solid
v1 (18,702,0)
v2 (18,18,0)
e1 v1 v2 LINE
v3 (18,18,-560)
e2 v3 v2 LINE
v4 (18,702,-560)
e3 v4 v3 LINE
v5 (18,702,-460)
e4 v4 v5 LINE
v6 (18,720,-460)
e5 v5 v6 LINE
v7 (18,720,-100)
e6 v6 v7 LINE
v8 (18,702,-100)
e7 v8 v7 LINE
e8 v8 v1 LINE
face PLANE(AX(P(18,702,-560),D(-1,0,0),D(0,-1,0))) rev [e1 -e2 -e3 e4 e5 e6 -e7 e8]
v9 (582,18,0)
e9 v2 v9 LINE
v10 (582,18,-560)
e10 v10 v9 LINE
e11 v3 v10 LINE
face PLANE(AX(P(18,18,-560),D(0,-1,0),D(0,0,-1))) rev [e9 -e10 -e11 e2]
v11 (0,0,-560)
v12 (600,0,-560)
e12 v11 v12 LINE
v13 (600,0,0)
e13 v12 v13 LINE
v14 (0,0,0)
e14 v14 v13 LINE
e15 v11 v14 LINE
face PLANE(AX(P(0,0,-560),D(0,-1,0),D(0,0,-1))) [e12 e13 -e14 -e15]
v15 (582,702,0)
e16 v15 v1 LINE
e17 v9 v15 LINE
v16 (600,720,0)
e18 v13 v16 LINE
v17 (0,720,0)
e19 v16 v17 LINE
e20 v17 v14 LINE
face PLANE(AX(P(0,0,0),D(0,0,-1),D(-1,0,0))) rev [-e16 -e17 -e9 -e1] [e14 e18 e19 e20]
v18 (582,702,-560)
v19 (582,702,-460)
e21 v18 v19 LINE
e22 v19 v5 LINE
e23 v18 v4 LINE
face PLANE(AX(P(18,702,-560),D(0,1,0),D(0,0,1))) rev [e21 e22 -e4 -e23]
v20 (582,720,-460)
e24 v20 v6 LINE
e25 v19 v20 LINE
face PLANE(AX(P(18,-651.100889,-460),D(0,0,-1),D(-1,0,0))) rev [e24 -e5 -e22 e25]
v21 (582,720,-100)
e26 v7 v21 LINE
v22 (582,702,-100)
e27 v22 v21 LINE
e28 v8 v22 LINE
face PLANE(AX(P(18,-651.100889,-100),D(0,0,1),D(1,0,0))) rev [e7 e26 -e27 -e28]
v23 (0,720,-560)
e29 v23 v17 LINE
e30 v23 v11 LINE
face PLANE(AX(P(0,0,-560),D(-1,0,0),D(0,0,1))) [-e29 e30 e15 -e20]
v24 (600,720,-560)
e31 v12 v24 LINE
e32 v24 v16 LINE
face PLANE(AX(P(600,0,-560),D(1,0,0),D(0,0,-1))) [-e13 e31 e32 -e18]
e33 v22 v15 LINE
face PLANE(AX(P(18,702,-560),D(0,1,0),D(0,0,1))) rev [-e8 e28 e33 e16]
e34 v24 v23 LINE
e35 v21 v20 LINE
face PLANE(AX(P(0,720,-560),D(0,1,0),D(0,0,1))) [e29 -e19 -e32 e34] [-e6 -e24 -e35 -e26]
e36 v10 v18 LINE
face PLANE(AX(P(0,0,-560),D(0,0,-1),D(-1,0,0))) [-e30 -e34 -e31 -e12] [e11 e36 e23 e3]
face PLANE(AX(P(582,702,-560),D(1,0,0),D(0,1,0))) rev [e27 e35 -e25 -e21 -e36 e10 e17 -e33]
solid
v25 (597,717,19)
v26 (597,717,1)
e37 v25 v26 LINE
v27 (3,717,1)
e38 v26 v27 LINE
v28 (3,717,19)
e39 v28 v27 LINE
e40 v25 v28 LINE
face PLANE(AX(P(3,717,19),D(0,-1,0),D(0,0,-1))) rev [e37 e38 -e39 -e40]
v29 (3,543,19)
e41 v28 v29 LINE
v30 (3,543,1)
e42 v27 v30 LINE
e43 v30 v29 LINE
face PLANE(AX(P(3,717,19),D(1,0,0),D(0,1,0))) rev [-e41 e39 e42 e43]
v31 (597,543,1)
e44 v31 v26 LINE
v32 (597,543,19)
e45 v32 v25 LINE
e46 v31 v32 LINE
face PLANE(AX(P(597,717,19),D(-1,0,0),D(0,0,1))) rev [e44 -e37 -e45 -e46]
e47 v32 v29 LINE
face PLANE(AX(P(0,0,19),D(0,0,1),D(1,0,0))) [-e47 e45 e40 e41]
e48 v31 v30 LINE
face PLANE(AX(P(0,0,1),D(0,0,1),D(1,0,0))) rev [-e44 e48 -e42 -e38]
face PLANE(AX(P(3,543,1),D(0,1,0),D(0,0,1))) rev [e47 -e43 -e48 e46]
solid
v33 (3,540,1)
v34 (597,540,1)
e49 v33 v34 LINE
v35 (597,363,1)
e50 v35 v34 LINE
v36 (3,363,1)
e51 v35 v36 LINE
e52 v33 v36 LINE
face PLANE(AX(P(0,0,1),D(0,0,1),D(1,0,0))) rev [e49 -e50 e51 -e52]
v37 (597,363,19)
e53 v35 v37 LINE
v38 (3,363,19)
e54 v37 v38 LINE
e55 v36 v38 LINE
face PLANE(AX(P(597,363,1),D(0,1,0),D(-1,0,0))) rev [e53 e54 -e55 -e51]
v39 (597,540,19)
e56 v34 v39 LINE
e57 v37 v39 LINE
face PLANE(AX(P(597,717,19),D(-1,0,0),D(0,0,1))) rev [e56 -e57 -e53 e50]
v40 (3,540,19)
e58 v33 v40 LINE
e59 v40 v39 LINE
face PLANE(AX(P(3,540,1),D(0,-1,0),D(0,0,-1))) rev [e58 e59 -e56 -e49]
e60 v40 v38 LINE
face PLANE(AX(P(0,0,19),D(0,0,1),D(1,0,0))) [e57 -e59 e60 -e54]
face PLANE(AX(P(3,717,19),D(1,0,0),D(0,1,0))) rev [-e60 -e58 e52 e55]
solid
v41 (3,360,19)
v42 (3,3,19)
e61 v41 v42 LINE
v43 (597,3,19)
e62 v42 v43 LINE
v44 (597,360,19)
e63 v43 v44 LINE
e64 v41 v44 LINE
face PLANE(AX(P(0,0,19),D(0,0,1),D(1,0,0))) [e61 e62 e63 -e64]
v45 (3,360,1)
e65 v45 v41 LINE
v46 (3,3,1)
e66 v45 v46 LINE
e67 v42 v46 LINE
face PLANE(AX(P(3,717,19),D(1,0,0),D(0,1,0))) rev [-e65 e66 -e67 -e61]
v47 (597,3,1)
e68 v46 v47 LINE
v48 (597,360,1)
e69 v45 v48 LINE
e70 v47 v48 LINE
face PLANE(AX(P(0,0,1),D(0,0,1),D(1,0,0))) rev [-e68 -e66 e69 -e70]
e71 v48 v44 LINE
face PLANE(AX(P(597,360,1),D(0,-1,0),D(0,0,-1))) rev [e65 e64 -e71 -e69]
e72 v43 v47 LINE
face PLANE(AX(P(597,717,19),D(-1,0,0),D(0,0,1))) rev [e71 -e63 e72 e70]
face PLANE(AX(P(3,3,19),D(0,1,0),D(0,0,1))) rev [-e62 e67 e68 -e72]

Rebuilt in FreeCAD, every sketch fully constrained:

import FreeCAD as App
import Part
import Sketcher
Q = App.Units.Quantity


def add_polygon(sketch, points):
    """Adds a closed chain of lines whose ends are joined by coincident constraints."""
    first, n = sketch.GeometryCount, len(points)
    for a, b in zip(points, points[1:] + points[:1]):
        sketch.addGeometry(Part.LineSegment(App.Vector(*a, 0), App.Vector(*b, 0)), False)
    for i in range(n):
        sketch.addConstraint(Sketcher.Constraint("Coincident", first + i, 2, first + (i + 1) % n, 1))

doc = App.newDocument("Part")
params = doc.addObject("Spreadsheet::Sheet", "Params")
for row, (alias, value) in enumerate([
    ("sketch1_width", "600 mm"),
    ("sketch1_height", "720 mm"),
    ("pad1_length", "560 mm"),
    ("sketch2_width", "564 mm"),
    ("sketch2_height", "684 mm"),
    ("sketch3_width", "564 mm"),
    ("sketch3_height", "360 mm"),
    ("pocket2_length", "702 mm"),
    ("sketch4_width", "594 mm"),
    ("sketch4_height", "714 mm"),
    ("pad2_length", "18 mm"),
    ("sketch5_width", "594 mm"),
    ("sketch5_height", "3 mm"),
    ("pocket3_length", "18 mm"),
    ("sketch6_width", "594 mm"),
    ("sketch6_height", "3 mm"),
    ("pocket4_length", "18 mm"),
], start=1):
    params.set(f"A{row}", alias)
    params.set(f"B{row}", "=" + value)
    params.setAlias(f"B{row}", alias)

body = doc.addObject("PartDesign::Body", "Body")

# Sketch on XY plane
sketch1 = body.newObject("Sketcher::SketchObject", "Sketch")
sketch1.AttachmentSupport = (doc.getObject("XY_Plane"), [""])
sketch1.MapMode = "FlatFace"
add_polygon(sketch1, [(0, 720), (0, 0), (600, 0), (600, 720)])  # lines 0-3
sketch1.addConstraint(Sketcher.Constraint("Vertical", 0))
sketch1.addConstraint(Sketcher.Constraint("Horizontal", 1))
sketch1.addConstraint(Sketcher.Constraint("Vertical", 2))
sketch1.addConstraint(Sketcher.Constraint("Horizontal", 3))
sketch1.addConstraint(Sketcher.Constraint("Coincident", 0, 2, -1, 1))
sketch1.addConstraint(Sketcher.Constraint("DistanceX", 1, 1, 1, 2, Q("600 mm")))
sketch1.addConstraint(Sketcher.Constraint("DistanceY", 0, 2, 0, 1, Q("720 mm")))
sketch1.setExpression("Constraints[9]", "Params.sketch1_width")
sketch1.setExpression("Constraints[10]", "Params.sketch1_height")
pad1 = body.newObject("PartDesign::Pad", "Pad")
pad1.Profile = sketch1
pad1.setExpression("Length", "Params.pad1_length")
pad1.Reversed = True

# Sketch on XY plane
sketch2 = body.newObject("Sketcher::SketchObject", "Sketch001")
sketch2.AttachmentSupport = (doc.getObject("XY_Plane"), [""])
sketch2.MapMode = "FlatFace"
add_polygon(sketch2, [(18, 702), (18, 18), (582, 18), (582, 702)])  # lines 0-3
sketch2.addConstraint(Sketcher.Constraint("Vertical", 0))
sketch2.addConstraint(Sketcher.Constraint("Horizontal", 1))
sketch2.addConstraint(Sketcher.Constraint("Vertical", 2))
sketch2.addConstraint(Sketcher.Constraint("Horizontal", 3))
sketch2.addConstraint(Sketcher.Constraint("DistanceX", 1, 1, 1, 2, Q("564 mm")))
sketch2.addConstraint(Sketcher.Constraint("DistanceY", 0, 2, 0, 1, Q("684 mm")))
sketch2.addConstraint(Sketcher.Constraint("DistanceX", -1, 1, 0, 2, Q("18 mm")))
sketch2.addConstraint(Sketcher.Constraint("DistanceY", -1, 1, 0, 2, Q("18 mm")))
sketch2.setExpression("Constraints[8]", "Params.sketch2_width")
sketch2.setExpression("Constraints[9]", "Params.sketch2_height")
pocket1 = body.newObject("PartDesign::Pocket", "Pocket")
pocket1.Profile = sketch2
pocket1.Type = "ThroughAll"

# Sketch on XZ plane
sketch3 = body.newObject("Sketcher::SketchObject", "Sketch002")
sketch3.AttachmentSupport = (doc.getObject("XZ_Plane"), [""])
sketch3.MapMode = "FlatFace"
sketch3.AttachmentOffset = App.Placement(App.Vector(0, 0, -720), App.Rotation())
add_polygon(sketch3, [(18, -460), (18, -100), (582, -100), (582, -460)])  # lines 0-3
sketch3.addConstraint(Sketcher.Constraint("Vertical", 0))
sketch3.addConstraint(Sketcher.Constraint("Horizontal", 1))
sketch3.addConstraint(Sketcher.Constraint("Vertical", 2))
sketch3.addConstraint(Sketcher.Constraint("Horizontal", 3))
sketch3.addConstraint(Sketcher.Constraint("DistanceX", 1, 1, 1, 2, Q("564 mm")))
sketch3.addConstraint(Sketcher.Constraint("DistanceY", 0, 1, 0, 2, Q("360 mm")))
sketch3.addConstraint(Sketcher.Constraint("DistanceX", -1, 1, 0, 2, Q("18 mm")))
sketch3.addConstraint(Sketcher.Constraint("DistanceY", 0, 2, -1, 1, Q("100 mm")))
sketch3.setExpression("Constraints[8]", "Params.sketch3_width")
sketch3.setExpression("Constraints[9]", "Params.sketch3_height")
pocket2 = body.newObject("PartDesign::Pocket", "Pocket001")
pocket2.Profile = sketch3
pocket2.setExpression("Length", "Params.pocket2_length")
pocket2.Reversed = True
body2 = doc.addObject("PartDesign::Body", "Body001")
body2.AllowCompound = True

# Sketch on XY plane
sketch4 = body2.newObject("Sketcher::SketchObject", "Sketch003")
sketch4.AttachmentSupport = (doc.getObject("XY_Plane001"), [""])
sketch4.MapMode = "FlatFace"
sketch4.AttachmentOffset = App.Placement(App.Vector(0, 0, 1), App.Rotation())
add_polygon(sketch4, [(3, 717), (3, 3), (597, 3), (597, 717)])  # lines 0-3
sketch4.addConstraint(Sketcher.Constraint("Vertical", 0))
sketch4.addConstraint(Sketcher.Constraint("Horizontal", 1))
sketch4.addConstraint(Sketcher.Constraint("Vertical", 2))
sketch4.addConstraint(Sketcher.Constraint("Horizontal", 3))
sketch4.addConstraint(Sketcher.Constraint("DistanceX", 1, 1, 1, 2, Q("594 mm")))
sketch4.addConstraint(Sketcher.Constraint("DistanceY", 0, 2, 0, 1, Q("714 mm")))
sketch4.addConstraint(Sketcher.Constraint("DistanceX", -1, 1, 0, 2, Q("3 mm")))
sketch4.addConstraint(Sketcher.Constraint("DistanceY", -1, 1, 0, 2, Q("3 mm")))
sketch4.setExpression("Constraints[8]", "Params.sketch4_width")
sketch4.setExpression("Constraints[9]", "Params.sketch4_height")
pad2 = body2.newObject("PartDesign::Pad", "Pad001")
pad2.Profile = sketch4
pad2.setExpression("Length", "Params.pad2_length")

# Sketch on XY plane
sketch5 = body2.newObject("Sketcher::SketchObject", "Sketch004")
sketch5.AttachmentSupport = (doc.getObject("XY_Plane001"), [""])
sketch5.MapMode = "FlatFace"
sketch5.AttachmentOffset = App.Placement(App.Vector(0, 0, 19), App.Rotation())
add_polygon(sketch5, [(3, 363), (3, 360), (597, 360), (597, 363)])  # lines 0-3
sketch5.addConstraint(Sketcher.Constraint("Vertical", 0))
sketch5.addConstraint(Sketcher.Constraint("Horizontal", 1))
sketch5.addConstraint(Sketcher.Constraint("Vertical", 2))
sketch5.addConstraint(Sketcher.Constraint("Horizontal", 3))
sketch5.addConstraint(Sketcher.Constraint("DistanceX", 1, 1, 1, 2, Q("594 mm")))
sketch5.addConstraint(Sketcher.Constraint("DistanceY", 0, 2, 0, 1, Q("3 mm")))
sketch5.addConstraint(Sketcher.Constraint("DistanceX", -1, 1, 0, 2, Q("3 mm")))
sketch5.addConstraint(Sketcher.Constraint("DistanceY", -1, 1, 0, 2, Q("360 mm")))
sketch5.setExpression("Constraints[8]", "Params.sketch5_width")
sketch5.setExpression("Constraints[9]", "Params.sketch5_height")
pocket3 = body2.newObject("PartDesign::Pocket", "Pocket002")
pocket3.Profile = sketch5
pocket3.setExpression("Length", "Params.pocket3_length")

# Sketch on XY plane
sketch6 = body2.newObject("Sketcher::SketchObject", "Sketch005")
sketch6.AttachmentSupport = (doc.getObject("XY_Plane001"), [""])
sketch6.MapMode = "FlatFace"
sketch6.AttachmentOffset = App.Placement(App.Vector(0, 0, 19), App.Rotation())
add_polygon(sketch6, [(3, 543), (3, 540), (597, 540), (597, 543)])  # lines 0-3
sketch6.addConstraint(Sketcher.Constraint("Vertical", 0))
sketch6.addConstraint(Sketcher.Constraint("Horizontal", 1))
sketch6.addConstraint(Sketcher.Constraint("Vertical", 2))
sketch6.addConstraint(Sketcher.Constraint("Horizontal", 3))
sketch6.addConstraint(Sketcher.Constraint("DistanceX", 1, 1, 1, 2, Q("594 mm")))
sketch6.addConstraint(Sketcher.Constraint("DistanceY", 0, 2, 0, 1, Q("3 mm")))
sketch6.addConstraint(Sketcher.Constraint("DistanceX", -1, 1, 0, 2, Q("3 mm")))
sketch6.addConstraint(Sketcher.Constraint("DistanceY", -1, 1, 0, 2, Q("540 mm")))
sketch6.setExpression("Constraints[8]", "Params.sketch6_width")
sketch6.setExpression("Constraints[9]", "Params.sketch6_height")
pocket4 = body2.newObject("PartDesign::Pocket", "Pocket003")
pocket4.Profile = sketch6
pocket4.setExpression("Length", "Params.pocket4_length")

doc.recompute()
